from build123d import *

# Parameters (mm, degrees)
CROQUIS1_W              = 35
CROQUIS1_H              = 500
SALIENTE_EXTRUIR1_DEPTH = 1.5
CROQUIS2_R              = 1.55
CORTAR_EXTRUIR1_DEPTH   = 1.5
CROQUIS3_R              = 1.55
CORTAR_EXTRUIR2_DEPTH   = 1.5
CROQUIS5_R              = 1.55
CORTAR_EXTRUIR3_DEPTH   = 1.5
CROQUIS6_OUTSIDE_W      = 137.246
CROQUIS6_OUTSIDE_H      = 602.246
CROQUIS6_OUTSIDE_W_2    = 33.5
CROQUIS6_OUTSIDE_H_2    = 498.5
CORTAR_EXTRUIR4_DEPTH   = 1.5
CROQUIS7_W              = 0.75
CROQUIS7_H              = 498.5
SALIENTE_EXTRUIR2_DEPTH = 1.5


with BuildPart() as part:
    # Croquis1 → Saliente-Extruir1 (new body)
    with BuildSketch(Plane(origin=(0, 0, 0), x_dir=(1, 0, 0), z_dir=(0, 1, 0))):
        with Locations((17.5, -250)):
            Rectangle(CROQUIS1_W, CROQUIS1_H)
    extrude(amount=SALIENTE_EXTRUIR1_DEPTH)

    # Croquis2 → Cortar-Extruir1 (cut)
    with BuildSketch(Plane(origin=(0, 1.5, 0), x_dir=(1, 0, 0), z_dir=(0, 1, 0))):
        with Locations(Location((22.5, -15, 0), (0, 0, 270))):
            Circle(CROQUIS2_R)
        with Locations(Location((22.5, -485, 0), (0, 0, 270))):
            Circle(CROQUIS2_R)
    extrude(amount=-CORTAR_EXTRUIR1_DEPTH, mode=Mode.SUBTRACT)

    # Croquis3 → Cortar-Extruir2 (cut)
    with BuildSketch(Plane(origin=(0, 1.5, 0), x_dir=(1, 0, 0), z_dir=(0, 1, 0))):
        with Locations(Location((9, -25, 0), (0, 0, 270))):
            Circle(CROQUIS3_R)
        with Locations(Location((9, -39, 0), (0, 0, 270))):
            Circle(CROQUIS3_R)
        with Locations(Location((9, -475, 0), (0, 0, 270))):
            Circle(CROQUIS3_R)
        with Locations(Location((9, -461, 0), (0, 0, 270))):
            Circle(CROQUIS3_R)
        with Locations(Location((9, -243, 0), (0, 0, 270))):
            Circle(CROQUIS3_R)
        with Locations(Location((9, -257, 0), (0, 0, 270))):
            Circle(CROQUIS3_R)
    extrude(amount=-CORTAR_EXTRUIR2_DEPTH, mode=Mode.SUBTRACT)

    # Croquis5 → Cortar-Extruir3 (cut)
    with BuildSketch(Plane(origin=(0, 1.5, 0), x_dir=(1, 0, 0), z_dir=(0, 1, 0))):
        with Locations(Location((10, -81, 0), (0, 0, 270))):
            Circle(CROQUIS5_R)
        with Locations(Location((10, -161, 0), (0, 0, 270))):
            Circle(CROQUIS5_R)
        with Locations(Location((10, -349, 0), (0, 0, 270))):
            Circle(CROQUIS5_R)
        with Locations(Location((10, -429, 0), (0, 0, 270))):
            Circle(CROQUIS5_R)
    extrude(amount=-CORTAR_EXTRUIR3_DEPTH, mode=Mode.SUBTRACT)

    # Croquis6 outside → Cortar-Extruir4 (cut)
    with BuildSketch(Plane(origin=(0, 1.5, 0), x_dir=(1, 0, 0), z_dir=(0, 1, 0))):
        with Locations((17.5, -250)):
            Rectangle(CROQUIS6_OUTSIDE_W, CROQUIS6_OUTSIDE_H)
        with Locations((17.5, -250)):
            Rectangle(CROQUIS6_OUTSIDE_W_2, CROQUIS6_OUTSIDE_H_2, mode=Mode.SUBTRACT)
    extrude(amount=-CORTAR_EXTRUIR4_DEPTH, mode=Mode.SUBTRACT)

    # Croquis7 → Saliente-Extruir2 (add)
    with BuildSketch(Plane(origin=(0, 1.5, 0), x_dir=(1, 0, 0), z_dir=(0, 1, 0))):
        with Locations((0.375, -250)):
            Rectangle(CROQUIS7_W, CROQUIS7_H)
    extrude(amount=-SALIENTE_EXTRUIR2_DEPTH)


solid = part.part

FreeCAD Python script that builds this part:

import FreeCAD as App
import Part
import Sketcher

V = App.Vector
Q = App.Units.Quantity

doc = App.newDocument("Part")
params = doc.addObject("Spreadsheet::Sheet", "Params")
for row, (alias, value) in enumerate([
    ("sketch1_width", "35 mm"),
    ("sketch1_height", "500 mm"),
    ("pad1_length", "1.5 mm"),
    ("sketch2_diameter", "3.1 mm"),
    ("pocket1_length", "1.5 mm"),
    ("sketch3_diameter", "3.1 mm"),
    ("pocket2_length", "1.5 mm"),
    ("sketch4_diameter", "3.1 mm"),
    ("pocket3_length", "1.5 mm"),
    ("sketch5_width", "33.5 mm"),
    ("sketch5_height", "498.5 mm"),
    ("pocket4_length", "1.5 mm"),
    ("sketch6_height", "498.5 mm"),
    ("sketch6_width", "0.75 mm"),
    ("pad2_length", "1.5 mm"),
], start=1):
    params.set(f"A{row}", alias)
    params.set(f"B{row}", "=" + value)
    params.setAlias(f"B{row}", alias)

body = doc.addObject("PartDesign::Body", "Body")

# Sketch on XZ plane
sketch1 = doc.addObject("Sketcher::SketchObject", "Sketch")
body.addObject(sketch1)
sketch1.AttachmentSupport = (doc.XZ_Plane, [""])
sketch1.MapMode = "FlatFace"
sketch1.addGeometry([
    Part.LineSegment(V(0, 0, 0), V(0, 500, 0)),
    Part.LineSegment(V(0, 500, 0), V(35, 500, 0)),
    Part.LineSegment(V(35, 500, 0), V(35, 0, 0)),
    Part.LineSegment(V(35, 0, 0), V(0, 0, 0)),
], False)
sketch1.addConstraint([
    Sketcher.Constraint("Coincident", 0, 2, 1, 1),
    Sketcher.Constraint("Coincident", 1, 2, 2, 1),
    Sketcher.Constraint("Coincident", 2, 2, 3, 1),
    Sketcher.Constraint("Coincident", 3, 2, 0, 1),
    Sketcher.Constraint("Vertical", 0),
    Sketcher.Constraint("Horizontal", 1),
    Sketcher.Constraint("Vertical", 2),
    Sketcher.Constraint("Horizontal", 3),
    Sketcher.Constraint("Coincident", 3, 2, -1, 1),
    Sketcher.Constraint("DistanceX", 1, 1, 1, 2, Q("35 mm")),
    Sketcher.Constraint("DistanceY", 0, 1, 0, 2, Q("500 mm")),
])
sketch1.setExpression("Constraints[9]", "Params.sketch1_width")
sketch1.setExpression("Constraints[10]", "Params.sketch1_height")
pad1 = doc.addObject("PartDesign::Pad", "Pad")
body.addObject(pad1)
pad1.Profile = sketch1
pad1.setExpression("Length", "Params.pad1_length")
pad1.Reversed = True

# Sketch on XZ plane
sketch2 = doc.addObject("Sketcher::SketchObject", "Sketch001")
body.addObject(sketch2)
sketch2.AttachmentSupport = (doc.XZ_Plane, [""])
sketch2.MapMode = "FlatFace"
sketch2.AttachmentOffset = App.Placement(V(0, 0, -1.5), App.Rotation())
sketch2.addGeometry([
    Part.Circle(V(22.5, 15, 0), V(0, 0, 1), 1.55),
    Part.Circle(V(22.5, 485, 0), V(0, 0, 1), 1.55),
], False)
sketch2.addConstraint([
    Sketcher.Constraint("Equal", 0, 1),
    Sketcher.Constraint("Vertical", 0, 3, 1, 3),
    Sketcher.Constraint("Diameter", 0, Q("3.1 mm")),
    Sketcher.Constraint("DistanceY", -1, 1, 0, 3, Q("15 mm")),
    Sketcher.Constraint("DistanceY", -1, 1, 1, 3, Q("485 mm")),
    Sketcher.Constraint("DistanceX", -1, 1, 0, 3, Q("22.5 mm")),
])
sketch2.setExpression("Constraints[2]", "Params.sketch2_diameter")
pocket1 = doc.addObject("PartDesign::Pocket", "Pocket")
body.addObject(pocket1)
pocket1.Profile = sketch2
pocket1.setExpression("Length", "Params.pocket1_length")
pocket1.Reversed = True

# Sketch on XZ plane
sketch3 = doc.addObject("Sketcher::SketchObject", "Sketch002")
body.addObject(sketch3)
sketch3.AttachmentSupport = (doc.XZ_Plane, [""])
sketch3.MapMode = "FlatFace"
sketch3.AttachmentOffset = App.Placement(V(0, 0, -1.5), App.Rotation())
sketch3.addGeometry([
    Part.Circle(V(9, 25, 0), V(0, 0, 1), 1.55),  # 0
    Part.Circle(V(9, 39, 0), V(0, 0, 1), 1.55),  # 1
    Part.Circle(V(9, 475, 0), V(0, 0, 1), 1.55),  # 2
    Part.Circle(V(9, 461, 0), V(0, 0, 1), 1.55),  # 3
    Part.Circle(V(9, 243, 0), V(0, 0, 1), 1.55),  # 4
    Part.Circle(V(9, 257, 0), V(0, 0, 1), 1.55),  # 5
], False)
sketch3.addConstraint([
    Sketcher.Constraint("Equal", 0, 1),
    Sketcher.Constraint("Equal", 1, 2),
    Sketcher.Constraint("Equal", 2, 3),
    Sketcher.Constraint("Equal", 3, 4),
    Sketcher.Constraint("Equal", 4, 5),
    Sketcher.Constraint("Vertical", 0, 3, 1, 3),
    Sketcher.Constraint("Vertical", 1, 3, 2, 3),
    Sketcher.Constraint("Vertical", 2, 3, 3, 3),
    Sketcher.Constraint("Vertical", 3, 3, 4, 3),
    Sketcher.Constraint("Vertical", 4, 3, 5, 3),
    Sketcher.Constraint("Diameter", 0, Q("3.1 mm")),
    Sketcher.Constraint("DistanceX", -1, 1, 0, 3, Q("9 mm")),
    Sketcher.Constraint("DistanceY", -1, 1, 0, 3, Q("25 mm")),
    Sketcher.Constraint("DistanceY", -1, 1, 1, 3, Q("39 mm")),
    Sketcher.Constraint("DistanceY", -1, 1, 2, 3, Q("475 mm")),
    Sketcher.Constraint("DistanceY", -1, 1, 3, 3, Q("461 mm")),
    Sketcher.Constraint("DistanceY", -1, 1, 4, 3, Q("243 mm")),
    Sketcher.Constraint("DistanceY", -1, 1, 5, 3, Q("257 mm")),
])
sketch3.setExpression("Constraints[10]", "Params.sketch3_diameter")
pocket2 = doc.addObject("PartDesign::Pocket", "Pocket001")
body.addObject(pocket2)
pocket2.Profile = sketch3
pocket2.setExpression("Length", "Params.pocket2_length")
pocket2.Reversed = True

# Sketch on XZ plane
sketch4 = doc.addObject("Sketcher::SketchObject", "Sketch003")
body.addObject(sketch4)
sketch4.AttachmentSupport = (doc.XZ_Plane, [""])
sketch4.MapMode = "FlatFace"
sketch4.AttachmentOffset = App.Placement(V(0, 0, -1.5), App.Rotation())
sketch4.addGeometry([
    Part.Circle(V(10, 81, 0), V(0, 0, 1), 1.55),
    Part.Circle(V(10, 161, 0), V(0, 0, 1), 1.55),
    Part.Circle(V(10, 349, 0), V(0, 0, 1), 1.55),
    Part.Circle(V(10, 429, 0), V(0, 0, 1), 1.55),
], False)
sketch4.addConstraint([
    Sketcher.Constraint("Equal", 0, 1),
    Sketcher.Constraint("Equal", 1, 2),
    Sketcher.Constraint("Equal", 2, 3),
    Sketcher.Constraint("Vertical", 0, 3, 1, 3),
    Sketcher.Constraint("Vertical", 1, 3, 2, 3),
    Sketcher.Constraint("Vertical", 2, 3, 3, 3),
    Sketcher.Constraint("Diameter", 0, Q("3.1 mm")),
    Sketcher.Constraint("DistanceX", -1, 1, 0, 3, Q("10 mm")),
    Sketcher.Constraint("DistanceY", -1, 1, 0, 3, Q("81 mm")),
    Sketcher.Constraint("DistanceY", -1, 1, 1, 3, Q("161 mm")),
    Sketcher.Constraint("DistanceY", -1, 1, 2, 3, Q("349 mm")),
    Sketcher.Constraint("DistanceY", -1, 1, 3, 3, Q("429 mm")),
])
sketch4.setExpression("Constraints[6]", "Params.sketch4_diameter")
pocket3 = doc.addObject("PartDesign::Pocket", "Pocket002")
body.addObject(pocket3)
pocket3.Profile = sketch4
pocket3.setExpression("Length", "Params.pocket3_length")
pocket3.Reversed = True

# Sketch on XZ plane
sketch5 = doc.addObject("Sketcher::SketchObject", "Sketch004")
body.addObject(sketch5)
sketch5.AttachmentSupport = (doc.XZ_Plane, [""])
sketch5.MapMode = "FlatFace"
sketch5.AttachmentOffset = App.Placement(V(0, 0, -1.5), App.Rotation())
sketch5.addGeometry([
    Part.LineSegment(V(-51.123, -51.123, 0), V(-51.123, 551.123, 0)),  # 0
    Part.LineSegment(V(-51.123, 551.123, 0), V(86.123, 551.123, 0)),  # 1
    Part.LineSegment(V(86.123, 551.123, 0), V(86.123, -51.123, 0)),  # 2
    Part.LineSegment(V(86.123, -51.123, 0), V(-51.123, -51.123, 0)),  # 3
    Part.LineSegment(V(34.25, 499.25, 0), V(0.75, 499.25, 0)),  # 4
    Part.LineSegment(V(0.75, 499.25, 0), V(0.75, 0.75, 0)),  # 5
    Part.LineSegment(V(0.75, 0.75, 0), V(34.25, 0.75, 0)),  # 6
    Part.LineSegment(V(34.25, 0.75, 0), V(34.25, 499.25, 0)),  # 7
], False)
sketch5.addConstraint([
    Sketcher.Constraint("Coincident", 0, 2, 1, 1),
    Sketcher.Constraint("Coincident", 1, 2, 2, 1),
    Sketcher.Constraint("Coincident", 2, 2, 3, 1),
    Sketcher.Constraint("Coincident", 3, 2, 0, 1),
    Sketcher.Constraint("Coincident", 4, 2, 5, 1),
    Sketcher.Constraint("Coincident", 5, 2, 6, 1),
    Sketcher.Constraint("Coincident", 6, 2, 7, 1),
    Sketcher.Constraint("Coincident", 7, 2, 4, 1),
    Sketcher.Constraint("Vertical", 0),
    Sketcher.Constraint("Horizontal", 1),
    Sketcher.Constraint("Vertical", 2),
    Sketcher.Constraint("Horizontal", 3),
    Sketcher.Constraint("Horizontal", 4),
    Sketcher.Constraint("Vertical", 5),
    Sketcher.Constraint("Horizontal", 6),
    Sketcher.Constraint("Vertical", 7),
    Sketcher.Constraint("DistanceX", 4, 2, 4, 1, Q("33.5 mm")),
    Sketcher.Constraint("DistanceY", 5, 2, 5, 1, Q("498.5 mm")),
    Sketcher.Constraint("DistanceX", 1, 1, 1, 2, Q("137.246 mm")),
    Sketcher.Constraint("DistanceY", 0, 1, 0, 2, Q("602.246 mm")),
    Sketcher.Constraint("DistanceX", -1, 1, 4, 2, Q("0.75 mm")),
    Sketcher.Constraint("DistanceY", -1, 1, 4, 2, Q("499.25 mm")),
    Sketcher.Constraint("DistanceX", 0, 2, -1, 1, Q("51.123 mm")),
    Sketcher.Constraint("DistanceY", -1, 1, 0, 2, Q("551.123 mm")),
])
sketch5.setExpression("Constraints[16]", "Params.sketch5_width")
sketch5.setExpression("Constraints[17]", "Params.sketch5_height")
pocket4 = doc.addObject("PartDesign::Pocket", "Pocket003")
body.addObject(pocket4)
pocket4.Profile = sketch5
pocket4.setExpression("Length", "Params.pocket4_length")
pocket4.Reversed = True

# Sketch on XZ plane
sketch6 = doc.addObject("Sketcher::SketchObject", "Sketch005")
body.addObject(sketch6)
sketch6.AttachmentSupport = (doc.XZ_Plane, [""])
sketch6.MapMode = "FlatFace"
sketch6.AttachmentOffset = App.Placement(V(0, 0, -1.5), App.Rotation())
sketch6.addGeometry([
    Part.LineSegment(V(0, 0.75, 0), V(0, 499.25, 0)),
    Part.LineSegment(V(0, 499.25, 0), V(0.75, 499.25, 0)),
    Part.LineSegment(V(0.75, 499.25, 0), V(0.75, 0.75, 0)),
    Part.LineSegment(V(0.75, 0.75, 0), V(0, 0.75, 0)),
], False)
sketch6.addConstraint([
    Sketcher.Constraint("Coincident", 0, 2, 1, 1),
    Sketcher.Constraint("Coincident", 1, 2, 2, 1),
    Sketcher.Constraint("Coincident", 2, 2, 3, 1),
    Sketcher.Constraint("Coincident", 3, 2, 0, 1),
    Sketcher.Constraint("Vertical", 0),
    Sketcher.Constraint("Horizontal", 1),
    Sketcher.Constraint("Vertical", 2),
    Sketcher.Constraint("Horizontal", 3),
    Sketcher.Constraint("PointOnObject", 0, 2, -2),
    Sketcher.Constraint("DistanceY", 0, 1, 0, 2, Q("498.5 mm")),
    Sketcher.Constraint("DistanceX", 1, 1, 1, 2, Q("0.75 mm")),
    Sketcher.Constraint("DistanceY", -1, 1, 0, 2, Q("499.25 mm")),
])
sketch6.setExpression("Constraints[9]", "Params.sketch6_height")
sketch6.setExpression("Constraints[10]", "Params.sketch6_width")
pad2 = doc.addObject("PartDesign::Pad", "Pad001")
body.addObject(pad2)
pad2.Profile = sketch6
pad2.setExpression("Length", "Params.pad2_length")

doc.recompute()
